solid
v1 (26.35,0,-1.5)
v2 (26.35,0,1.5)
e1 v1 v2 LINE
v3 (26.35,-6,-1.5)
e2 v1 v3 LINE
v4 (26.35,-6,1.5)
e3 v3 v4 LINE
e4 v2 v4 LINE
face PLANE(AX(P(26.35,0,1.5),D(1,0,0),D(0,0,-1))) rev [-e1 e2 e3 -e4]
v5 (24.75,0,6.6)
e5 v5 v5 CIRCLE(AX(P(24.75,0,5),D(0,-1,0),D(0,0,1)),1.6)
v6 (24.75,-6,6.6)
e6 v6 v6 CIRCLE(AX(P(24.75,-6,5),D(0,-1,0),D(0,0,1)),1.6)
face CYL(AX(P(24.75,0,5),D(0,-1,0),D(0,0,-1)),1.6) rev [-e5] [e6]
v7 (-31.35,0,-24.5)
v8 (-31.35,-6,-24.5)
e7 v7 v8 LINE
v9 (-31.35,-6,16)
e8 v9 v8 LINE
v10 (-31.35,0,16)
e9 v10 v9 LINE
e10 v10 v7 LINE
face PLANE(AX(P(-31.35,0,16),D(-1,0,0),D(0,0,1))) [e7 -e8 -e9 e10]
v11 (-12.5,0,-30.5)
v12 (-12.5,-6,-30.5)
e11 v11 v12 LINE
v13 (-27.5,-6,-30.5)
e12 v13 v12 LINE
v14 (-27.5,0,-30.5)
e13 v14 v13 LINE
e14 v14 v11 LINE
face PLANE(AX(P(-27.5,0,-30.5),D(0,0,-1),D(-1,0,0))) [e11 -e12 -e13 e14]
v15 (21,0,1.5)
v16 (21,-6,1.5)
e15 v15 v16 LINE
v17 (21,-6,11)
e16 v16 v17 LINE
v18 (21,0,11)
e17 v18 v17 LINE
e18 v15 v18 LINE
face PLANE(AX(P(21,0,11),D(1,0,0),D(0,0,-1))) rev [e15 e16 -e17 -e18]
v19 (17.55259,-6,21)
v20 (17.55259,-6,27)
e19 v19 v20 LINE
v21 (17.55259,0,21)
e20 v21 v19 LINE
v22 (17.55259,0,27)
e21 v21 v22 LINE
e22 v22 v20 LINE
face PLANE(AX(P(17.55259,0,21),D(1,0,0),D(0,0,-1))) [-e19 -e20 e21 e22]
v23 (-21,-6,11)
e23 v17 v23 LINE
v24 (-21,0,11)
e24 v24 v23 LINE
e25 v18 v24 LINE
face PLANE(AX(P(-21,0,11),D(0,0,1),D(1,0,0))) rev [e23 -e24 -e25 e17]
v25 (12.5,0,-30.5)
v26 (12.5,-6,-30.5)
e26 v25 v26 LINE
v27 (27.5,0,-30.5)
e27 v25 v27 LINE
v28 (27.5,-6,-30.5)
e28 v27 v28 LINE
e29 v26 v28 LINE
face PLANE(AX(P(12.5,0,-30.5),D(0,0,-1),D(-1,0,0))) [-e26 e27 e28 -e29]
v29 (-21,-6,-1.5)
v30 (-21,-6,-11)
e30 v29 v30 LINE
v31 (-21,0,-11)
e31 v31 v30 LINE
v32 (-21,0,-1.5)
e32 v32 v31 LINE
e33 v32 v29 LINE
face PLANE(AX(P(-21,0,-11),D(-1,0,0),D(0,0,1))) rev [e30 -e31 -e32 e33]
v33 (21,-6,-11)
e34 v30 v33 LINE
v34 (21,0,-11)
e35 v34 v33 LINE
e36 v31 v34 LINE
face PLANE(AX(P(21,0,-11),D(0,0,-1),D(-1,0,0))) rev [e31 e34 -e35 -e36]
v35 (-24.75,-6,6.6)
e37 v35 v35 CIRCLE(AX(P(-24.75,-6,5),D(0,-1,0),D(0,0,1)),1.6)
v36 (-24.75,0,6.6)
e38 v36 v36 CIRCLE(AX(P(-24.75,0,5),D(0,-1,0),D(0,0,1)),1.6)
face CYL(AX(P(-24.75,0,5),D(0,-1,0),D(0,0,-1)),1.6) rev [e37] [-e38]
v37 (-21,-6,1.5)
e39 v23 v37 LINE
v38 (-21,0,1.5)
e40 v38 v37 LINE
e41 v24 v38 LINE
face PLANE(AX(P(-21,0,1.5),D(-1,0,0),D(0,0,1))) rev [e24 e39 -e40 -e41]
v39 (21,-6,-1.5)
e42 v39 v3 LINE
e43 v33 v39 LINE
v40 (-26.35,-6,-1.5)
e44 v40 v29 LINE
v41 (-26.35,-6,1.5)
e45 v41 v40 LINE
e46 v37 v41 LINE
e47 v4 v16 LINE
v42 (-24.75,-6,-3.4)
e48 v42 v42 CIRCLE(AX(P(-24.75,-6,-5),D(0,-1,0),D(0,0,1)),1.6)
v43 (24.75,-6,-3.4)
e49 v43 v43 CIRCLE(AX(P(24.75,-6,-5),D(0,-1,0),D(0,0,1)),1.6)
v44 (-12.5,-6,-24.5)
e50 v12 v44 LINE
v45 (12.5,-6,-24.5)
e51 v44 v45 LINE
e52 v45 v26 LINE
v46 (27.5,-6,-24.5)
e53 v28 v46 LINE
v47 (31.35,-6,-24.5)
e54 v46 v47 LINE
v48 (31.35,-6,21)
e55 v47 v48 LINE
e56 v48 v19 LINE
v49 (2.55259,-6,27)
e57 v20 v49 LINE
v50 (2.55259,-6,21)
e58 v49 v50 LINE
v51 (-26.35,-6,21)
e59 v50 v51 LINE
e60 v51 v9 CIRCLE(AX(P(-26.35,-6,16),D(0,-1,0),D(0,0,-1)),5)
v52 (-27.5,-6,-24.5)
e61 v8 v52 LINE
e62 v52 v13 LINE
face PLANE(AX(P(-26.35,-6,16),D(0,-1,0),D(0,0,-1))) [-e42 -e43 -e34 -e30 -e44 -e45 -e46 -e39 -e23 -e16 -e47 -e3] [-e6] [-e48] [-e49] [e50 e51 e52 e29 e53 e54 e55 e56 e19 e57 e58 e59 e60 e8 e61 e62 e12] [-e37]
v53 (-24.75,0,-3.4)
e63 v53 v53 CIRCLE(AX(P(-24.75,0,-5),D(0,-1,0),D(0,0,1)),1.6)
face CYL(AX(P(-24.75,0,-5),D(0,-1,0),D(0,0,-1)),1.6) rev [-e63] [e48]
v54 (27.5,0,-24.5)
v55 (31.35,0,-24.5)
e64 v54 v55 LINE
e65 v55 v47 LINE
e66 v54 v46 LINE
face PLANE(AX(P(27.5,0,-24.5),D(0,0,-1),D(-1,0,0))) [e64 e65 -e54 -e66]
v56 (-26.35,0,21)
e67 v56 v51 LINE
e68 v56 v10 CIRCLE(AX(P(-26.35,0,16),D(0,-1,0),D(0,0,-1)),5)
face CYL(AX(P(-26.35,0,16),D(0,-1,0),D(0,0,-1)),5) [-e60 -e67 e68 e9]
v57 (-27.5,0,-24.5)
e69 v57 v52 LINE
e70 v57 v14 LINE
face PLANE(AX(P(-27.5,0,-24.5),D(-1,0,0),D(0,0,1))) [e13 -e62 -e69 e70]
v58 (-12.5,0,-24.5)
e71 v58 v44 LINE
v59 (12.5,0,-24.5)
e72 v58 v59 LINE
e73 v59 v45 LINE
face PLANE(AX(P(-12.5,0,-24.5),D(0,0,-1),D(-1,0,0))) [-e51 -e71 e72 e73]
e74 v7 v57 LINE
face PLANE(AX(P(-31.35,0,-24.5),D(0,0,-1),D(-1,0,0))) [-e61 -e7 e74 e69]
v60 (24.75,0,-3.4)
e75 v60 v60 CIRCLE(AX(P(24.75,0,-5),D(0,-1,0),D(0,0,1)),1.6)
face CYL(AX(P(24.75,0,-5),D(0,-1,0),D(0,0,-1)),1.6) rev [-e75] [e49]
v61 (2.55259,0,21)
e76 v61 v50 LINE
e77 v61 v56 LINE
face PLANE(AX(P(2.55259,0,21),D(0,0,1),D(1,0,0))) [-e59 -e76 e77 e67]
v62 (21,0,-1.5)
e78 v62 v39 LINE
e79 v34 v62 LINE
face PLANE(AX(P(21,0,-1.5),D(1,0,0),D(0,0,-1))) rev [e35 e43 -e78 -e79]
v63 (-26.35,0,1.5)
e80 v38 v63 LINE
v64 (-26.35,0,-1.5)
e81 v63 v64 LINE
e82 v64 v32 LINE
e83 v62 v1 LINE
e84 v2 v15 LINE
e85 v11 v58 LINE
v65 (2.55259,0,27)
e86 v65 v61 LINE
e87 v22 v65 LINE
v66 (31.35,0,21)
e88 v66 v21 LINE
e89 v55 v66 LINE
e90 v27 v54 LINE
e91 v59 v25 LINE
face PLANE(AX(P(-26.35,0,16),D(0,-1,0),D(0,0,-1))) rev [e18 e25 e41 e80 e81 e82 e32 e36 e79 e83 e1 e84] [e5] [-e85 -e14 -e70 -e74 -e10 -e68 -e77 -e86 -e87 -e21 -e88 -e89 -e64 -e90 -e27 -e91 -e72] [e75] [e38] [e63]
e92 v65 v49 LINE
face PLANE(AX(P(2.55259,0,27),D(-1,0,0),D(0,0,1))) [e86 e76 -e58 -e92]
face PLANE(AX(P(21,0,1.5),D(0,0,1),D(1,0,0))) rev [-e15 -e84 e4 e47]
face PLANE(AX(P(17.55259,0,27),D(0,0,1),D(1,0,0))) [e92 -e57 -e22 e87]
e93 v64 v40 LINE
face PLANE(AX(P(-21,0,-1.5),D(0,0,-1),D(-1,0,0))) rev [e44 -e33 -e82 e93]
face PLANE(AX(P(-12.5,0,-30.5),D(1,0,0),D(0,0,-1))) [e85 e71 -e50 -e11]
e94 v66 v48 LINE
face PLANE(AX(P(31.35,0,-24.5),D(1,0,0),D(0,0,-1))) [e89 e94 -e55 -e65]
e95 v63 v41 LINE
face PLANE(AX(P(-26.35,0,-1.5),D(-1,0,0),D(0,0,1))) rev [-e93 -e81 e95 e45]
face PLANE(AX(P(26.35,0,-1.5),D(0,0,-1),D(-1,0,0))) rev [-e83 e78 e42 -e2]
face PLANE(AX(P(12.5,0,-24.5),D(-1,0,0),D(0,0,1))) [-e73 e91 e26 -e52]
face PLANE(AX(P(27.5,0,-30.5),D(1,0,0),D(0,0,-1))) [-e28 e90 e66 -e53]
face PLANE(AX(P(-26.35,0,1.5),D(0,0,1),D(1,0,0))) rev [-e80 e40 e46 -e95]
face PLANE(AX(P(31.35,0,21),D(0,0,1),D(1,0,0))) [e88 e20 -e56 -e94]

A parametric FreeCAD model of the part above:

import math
import FreeCAD as App
import Part
import Sketcher

V = App.Vector


def add_polygon(sketch, points):
    """Adds a closed chain of lines whose ends are joined by coincident constraints."""
    first, n = sketch.GeometryCount, len(points)
    for a, b in zip(points, points[1:] + points[:1]):
        sketch.addGeometry(Part.LineSegment(App.Vector(*a, 0), App.Vector(*b, 0)), False)
    for i in range(n):
        sketch.addConstraint(Sketcher.Constraint("Coincident", first + i, 2, first + (i + 1) % n, 1))

doc = App.newDocument("Part")
params = doc.addObject("Spreadsheet::Sheet", "Params")
for row, (alias, value) in enumerate([
    ("sketch1_radius", "5 mm"),
    ("sketch1_diameter", "3.2 mm"),
    ("sketch1_width", "15 mm"),
    ("sketch1_width2", "25 mm"),
    ("sketch1_width3", "42 mm"),
    ("pad1_length", "6 mm"),
], start=1):
    params.set(f"A{row}", alias)
    params.set(f"B{row}", "=" + value)
    params.setAlias(f"B{row}", alias)

body = doc.addObject("PartDesign::Body", "Body")

# Sketch on XZ plane
sketch1 = doc.addObject("Sketcher::SketchObject", "Sketch")
body.addObject(sketch1)
sketch1.AttachmentSupport = (doc.XZ_Plane, [""])
sketch1.MapMode = "FlatFace"
sketch1.AttachmentOffset = App.Placement(V(0, 0, 6), App.Rotation())
sketch1.addGeometry(Part.LineSegment(V(2.6, 21, 0), V(-26.4, 21, 0)), False)  # 0
sketch1.addGeometry(Part.ArcOfCircle(Part.Circle(V(-26.4, 16, 0), V(0, 0, 1), 5), math.radians(90), math.radians(180)), False)  # 1
sketch1.addGeometry(Part.LineSegment(V(-31.4, 16, 0), V(-31.4, -24.5, 0)), False)  # 2
sketch1.addGeometry(Part.LineSegment(V(-31.4, -24.5, 0), V(-27.5, -24.5, 0)), False)  # 3
sketch1.addGeometry(Part.LineSegment(V(-27.5, -24.5, 0), V(-27.5, -30.5, 0)), False)  # 4
sketch1.addGeometry(Part.LineSegment(V(-27.5, -30.5, 0), V(-12.5, -30.5, 0)), False)  # 5
sketch1.addGeometry(Part.LineSegment(V(-12.5, -30.5, 0), V(-12.5, -24.5, 0)), False)  # 6
sketch1.addGeometry(Part.LineSegment(V(-12.5, -24.5, 0), V(12.5, -24.5, 0)), False)  # 7
sketch1.addGeometry(Part.LineSegment(V(12.5, -24.5, 0), V(12.5, -30.5, 0)), False)  # 8
sketch1.addGeometry(Part.LineSegment(V(12.5, -30.5, 0), V(27.5, -30.5, 0)), False)  # 9
sketch1.addGeometry(Part.LineSegment(V(27.5, -30.5, 0), V(27.5, -24.5, 0)), False)  # 10
sketch1.addGeometry(Part.LineSegment(V(27.5, -24.5, 0), V(31.4, -24.5, 0)), False)  # 11
sketch1.addGeometry(Part.LineSegment(V(31.4, -24.5, 0), V(31.4, 21, 0)), False)  # 12
sketch1.addGeometry(Part.LineSegment(V(31.4, 21, 0), V(17.6, 21, 0)), False)  # 13
sketch1.addGeometry(Part.LineSegment(V(17.6, 21, 0), V(17.6, 27, 0)), False)  # 14
sketch1.addGeometry(Part.LineSegment(V(17.6, 27, 0), V(2.6, 27, 0)), False)  # 15
sketch1.addGeometry(Part.LineSegment(V(2.6, 27, 0), V(2.6, 21, 0)), False)  # 16
sketch1.addGeometry(Part.Circle(V(-24.8, -5, 0), V(0, 0, 1), 1.6), False)  # 17
sketch1.addGeometry(Part.Circle(V(24.8, -5, 0), V(0, 0, 1), 1.6), False)  # 18
sketch1.addGeometry(Part.Circle(V(-24.8, 5, 0), V(0, 0, 1), 1.6), False)  # 19
add_polygon(sketch1, [(-26.4, -1.5), (-26.4, 1.5), (-21, 1.5), (-21, 11), (21, 11), (21, 1.5), (26.4, 1.5), (26.4, -1.5), (21, -1.5), (21, -11), (-21, -11), (-21, -1.5)])  # lines 20-31
sketch1.addGeometry(Part.Circle(V(24.8, 5, 0), V(0, 0, 1), 1.6), False)  # 32
sketch1.addConstraint([
    Sketcher.Constraint("Tangent", 0, 2, 1, 1),
    Sketcher.Constraint("Tangent", 1, 2, 2, 1),
    Sketcher.Constraint("Coincident", 2, 2, 3, 1),
    Sketcher.Constraint("Coincident", 3, 2, 4, 1),
    Sketcher.Constraint("Coincident", 4, 2, 5, 1),
    Sketcher.Constraint("Coincident", 5, 2, 6, 1),
    Sketcher.Constraint("Coincident", 6, 2, 7, 1),
    Sketcher.Constraint("Coincident", 7, 2, 8, 1),
    Sketcher.Constraint("Coincident", 8, 2, 9, 1),
    Sketcher.Constraint("Coincident", 9, 2, 10, 1),
    Sketcher.Constraint("Coincident", 10, 2, 11, 1),
    Sketcher.Constraint("Coincident", 11, 2, 12, 1),
    Sketcher.Constraint("Coincident", 12, 2, 13, 1),
    Sketcher.Constraint("Coincident", 13, 2, 14, 1),
    Sketcher.Constraint("Coincident", 14, 2, 15, 1),
    Sketcher.Constraint("Coincident", 15, 2, 16, 1),
    Sketcher.Constraint("Coincident", 16, 2, 0, 1),
    Sketcher.Constraint("Horizontal", 0),
    Sketcher.Constraint("Vertical", 2),
    Sketcher.Constraint("Horizontal", 3),
    Sketcher.Constraint("Vertical", 4),
    Sketcher.Constraint("Horizontal", 5),
    Sketcher.Constraint("Vertical", 6),
    Sketcher.Constraint("Horizontal", 7),
    Sketcher.Constraint("Vertical", 8),
    Sketcher.Constraint("Horizontal", 9),
    Sketcher.Constraint("Vertical", 10),
    Sketcher.Constraint("Horizontal", 11),
    Sketcher.Constraint("Vertical", 12),
    Sketcher.Constraint("Horizontal", 13),
    Sketcher.Constraint("Vertical", 14),
    Sketcher.Constraint("Horizontal", 15),
    Sketcher.Constraint("Vertical", 16),
    Sketcher.Constraint("Vertical", 20),
    Sketcher.Constraint("Horizontal", 21),
    Sketcher.Constraint("Vertical", 22),
    Sketcher.Constraint("Horizontal", 23),
    Sketcher.Constraint("Vertical", 24),
    Sketcher.Constraint("Horizontal", 25),
    Sketcher.Constraint("Vertical", 26),
    Sketcher.Constraint("Horizontal", 27),
    Sketcher.Constraint("Vertical", 28),
    Sketcher.Constraint("Horizontal", 29),
    Sketcher.Constraint("Vertical", 30),
    Sketcher.Constraint("Horizontal", 31),
    Sketcher.Constraint("Equal", 17, 18),
    Sketcher.Constraint("Equal", 18, 19),
    Sketcher.Constraint("Equal", 19, 32),
    Sketcher.Constraint("Symmetric", 18, 3, 19, 3, -1, 1),
    Sketcher.Constraint("Symmetric", 17, 3, 32, 3, -1, 1),
    Sketcher.Constraint("Symmetric", 20, 2, 26, 2, -1, 1),
    Sketcher.Constraint("Symmetric", 22, 2, 28, 2, -1, 1),
    Sketcher.Constraint("Symmetric", 24, 2, 30, 2, -1, 1),
    Sketcher.Constraint("Symmetric", 17, 3, 18, 3, -2),
    Sketcher.Constraint("Symmetric", 5, 2, 8, 2, -2),
    Sketcher.Constraint("Symmetric", 3, 2, 10, 2, -2),
    Sketcher.Constraint("Symmetric", 21, 2, 24, 2, -2),
    Sketcher.Constraint("Horizontal", 3, 2, 6, 2),
    Sketcher.Constraint("Horizontal", 0, 2, 12, 2),
    Sketcher.Constraint("Vertical", 0, 2, 20, 2),
    Sketcher.Constraint("Equal", 3, 11),
    Sketcher.Constraint("Equal", 9, 15),
    Sketcher.Constraint("Equal", 10, 14),
    Sketcher.Constraint("Radius", 1, 5.0),
    Sketcher.Constraint("Diameter", 17, 3.2),
    Sketcher.Constraint("DistanceX", 5, 1, 5, 2, 15.0),
    Sketcher.Constraint("DistanceX", 7, 1, 7, 2, 25.0),
    Sketcher.Constraint("DistanceX", 23, 1, 23, 2, 42.0),
    Sketcher.Constraint("DistanceY", 4, 2, 4, 1, 6.0),
    Sketcher.Constraint("DistanceY", 20, 1, 20, 2, 3.0),
    Sketcher.Constraint("DistanceY", 2, 2, 2, 1, 40.5),
    Sketcher.Constraint("DistanceY", 22, 1, 22, 2, 9.5),
    Sketcher.Constraint("DistanceY", -1, 1, 1, 3, 16.0),
    Sketcher.Constraint("DistanceY", 17, 3, -1, 1, 5.0),
    Sketcher.Constraint("DistanceX", 3, 1, 3, 2, 3.85),
    Sketcher.Constraint("DistanceX", 1, 3, 17, 3, 1.6),
    Sketcher.Constraint("DistanceX", 0, 2, 0, 1, 28.90259),
])
sketch1.setExpression("Constraints[75]", "Params.sketch1_radius")
sketch1.setExpression("Constraints[76]", "Params.sketch1_diameter")
sketch1.setExpression("Constraints[77]", "Params.sketch1_width")
sketch1.setExpression("Constraints[78]", "Params.sketch1_width2")
sketch1.setExpression("Constraints[79]", "Params.sketch1_width3")
pad1 = doc.addObject("PartDesign::Pad", "Pad")
body.addObject(pad1)
pad1.Profile = sketch1
pad1.setExpression("Length", "Params.pad1_length")
pad1.Reversed = True

doc.recompute()
